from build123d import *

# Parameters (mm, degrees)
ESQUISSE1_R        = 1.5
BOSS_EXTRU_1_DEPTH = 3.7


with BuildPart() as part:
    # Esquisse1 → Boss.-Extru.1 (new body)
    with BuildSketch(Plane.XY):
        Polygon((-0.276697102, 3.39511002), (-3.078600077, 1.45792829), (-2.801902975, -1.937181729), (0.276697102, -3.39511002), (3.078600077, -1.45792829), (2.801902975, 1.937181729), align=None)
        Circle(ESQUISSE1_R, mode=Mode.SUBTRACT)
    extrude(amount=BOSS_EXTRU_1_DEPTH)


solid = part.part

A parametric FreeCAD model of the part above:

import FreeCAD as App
import Part
import Sketcher

V = App.Vector


def add_polygon(sketch, points):
    """Adds a closed chain of lines whose ends are joined by coincident constraints."""
    first, n = sketch.GeometryCount, len(points)
    for a, b in zip(points, points[1:] + points[:1]):
        sketch.addGeometry(Part.LineSegment(App.Vector(*a, 0), App.Vector(*b, 0)), False)
    for i in range(n):
        sketch.addConstraint(Sketcher.Constraint("Coincident", first + i, 2, first + (i + 1) % n, 1))

doc = App.newDocument("Part")
body = doc.addObject("PartDesign::Body", "Body")

# Sketch on XY plane
sketch1 = doc.addObject("Sketcher::SketchObject", "Sketch")
body.addObject(sketch1)
sketch1.AttachmentSupport = (doc.XY_Plane, [""])
sketch1.MapMode = "FlatFace"
add_polygon(sketch1, [(-0.3, 3.4), (-3.1, 1.5), (-2.8, -1.9), (0.3, -3.4), (3.1, -1.5), (2.8, 1.9)])  # lines 0-5
sketch1.addGeometry(Part.Circle(V(0, 0, 0), V(0, 0, 1), 1.5), False)  # 6
sketch1.addConstraint([
    Sketcher.Constraint("Coincident", 6, 3, -1, 1),
    Sketcher.Constraint("Symmetric", 0, 2, 3, 2, -1, 1),
    Sketcher.Constraint("Symmetric", 1, 2, 4, 2, -1, 1),
    Sketcher.Constraint("Symmetric", 2, 2, 5, 2, -1, 1),
    Sketcher.Constraint("Equal", 0, 1),
    Sketcher.Constraint("Equal", 1, 2),
    Sketcher.Constraint("Diameter", 6, 3.0),
    Sketcher.Constraint("DistanceX", 0, 2, -1, 1, 3.0786),
    Sketcher.Constraint("DistanceX", 1, 2, 2, 2, 3.0786),
    Sketcher.Constraint("DistanceY", -1, 1, 0, 2, 1.457928),
    Sketcher.Constraint("DistanceY", 1, 2, -1, 1, 1.937182),
])
pad1 = doc.addObject("PartDesign::Pad", "Pad")
body.addObject(pad1)
pad1.Profile = sketch1
pad1.Length = 3.7

doc.recompute()
